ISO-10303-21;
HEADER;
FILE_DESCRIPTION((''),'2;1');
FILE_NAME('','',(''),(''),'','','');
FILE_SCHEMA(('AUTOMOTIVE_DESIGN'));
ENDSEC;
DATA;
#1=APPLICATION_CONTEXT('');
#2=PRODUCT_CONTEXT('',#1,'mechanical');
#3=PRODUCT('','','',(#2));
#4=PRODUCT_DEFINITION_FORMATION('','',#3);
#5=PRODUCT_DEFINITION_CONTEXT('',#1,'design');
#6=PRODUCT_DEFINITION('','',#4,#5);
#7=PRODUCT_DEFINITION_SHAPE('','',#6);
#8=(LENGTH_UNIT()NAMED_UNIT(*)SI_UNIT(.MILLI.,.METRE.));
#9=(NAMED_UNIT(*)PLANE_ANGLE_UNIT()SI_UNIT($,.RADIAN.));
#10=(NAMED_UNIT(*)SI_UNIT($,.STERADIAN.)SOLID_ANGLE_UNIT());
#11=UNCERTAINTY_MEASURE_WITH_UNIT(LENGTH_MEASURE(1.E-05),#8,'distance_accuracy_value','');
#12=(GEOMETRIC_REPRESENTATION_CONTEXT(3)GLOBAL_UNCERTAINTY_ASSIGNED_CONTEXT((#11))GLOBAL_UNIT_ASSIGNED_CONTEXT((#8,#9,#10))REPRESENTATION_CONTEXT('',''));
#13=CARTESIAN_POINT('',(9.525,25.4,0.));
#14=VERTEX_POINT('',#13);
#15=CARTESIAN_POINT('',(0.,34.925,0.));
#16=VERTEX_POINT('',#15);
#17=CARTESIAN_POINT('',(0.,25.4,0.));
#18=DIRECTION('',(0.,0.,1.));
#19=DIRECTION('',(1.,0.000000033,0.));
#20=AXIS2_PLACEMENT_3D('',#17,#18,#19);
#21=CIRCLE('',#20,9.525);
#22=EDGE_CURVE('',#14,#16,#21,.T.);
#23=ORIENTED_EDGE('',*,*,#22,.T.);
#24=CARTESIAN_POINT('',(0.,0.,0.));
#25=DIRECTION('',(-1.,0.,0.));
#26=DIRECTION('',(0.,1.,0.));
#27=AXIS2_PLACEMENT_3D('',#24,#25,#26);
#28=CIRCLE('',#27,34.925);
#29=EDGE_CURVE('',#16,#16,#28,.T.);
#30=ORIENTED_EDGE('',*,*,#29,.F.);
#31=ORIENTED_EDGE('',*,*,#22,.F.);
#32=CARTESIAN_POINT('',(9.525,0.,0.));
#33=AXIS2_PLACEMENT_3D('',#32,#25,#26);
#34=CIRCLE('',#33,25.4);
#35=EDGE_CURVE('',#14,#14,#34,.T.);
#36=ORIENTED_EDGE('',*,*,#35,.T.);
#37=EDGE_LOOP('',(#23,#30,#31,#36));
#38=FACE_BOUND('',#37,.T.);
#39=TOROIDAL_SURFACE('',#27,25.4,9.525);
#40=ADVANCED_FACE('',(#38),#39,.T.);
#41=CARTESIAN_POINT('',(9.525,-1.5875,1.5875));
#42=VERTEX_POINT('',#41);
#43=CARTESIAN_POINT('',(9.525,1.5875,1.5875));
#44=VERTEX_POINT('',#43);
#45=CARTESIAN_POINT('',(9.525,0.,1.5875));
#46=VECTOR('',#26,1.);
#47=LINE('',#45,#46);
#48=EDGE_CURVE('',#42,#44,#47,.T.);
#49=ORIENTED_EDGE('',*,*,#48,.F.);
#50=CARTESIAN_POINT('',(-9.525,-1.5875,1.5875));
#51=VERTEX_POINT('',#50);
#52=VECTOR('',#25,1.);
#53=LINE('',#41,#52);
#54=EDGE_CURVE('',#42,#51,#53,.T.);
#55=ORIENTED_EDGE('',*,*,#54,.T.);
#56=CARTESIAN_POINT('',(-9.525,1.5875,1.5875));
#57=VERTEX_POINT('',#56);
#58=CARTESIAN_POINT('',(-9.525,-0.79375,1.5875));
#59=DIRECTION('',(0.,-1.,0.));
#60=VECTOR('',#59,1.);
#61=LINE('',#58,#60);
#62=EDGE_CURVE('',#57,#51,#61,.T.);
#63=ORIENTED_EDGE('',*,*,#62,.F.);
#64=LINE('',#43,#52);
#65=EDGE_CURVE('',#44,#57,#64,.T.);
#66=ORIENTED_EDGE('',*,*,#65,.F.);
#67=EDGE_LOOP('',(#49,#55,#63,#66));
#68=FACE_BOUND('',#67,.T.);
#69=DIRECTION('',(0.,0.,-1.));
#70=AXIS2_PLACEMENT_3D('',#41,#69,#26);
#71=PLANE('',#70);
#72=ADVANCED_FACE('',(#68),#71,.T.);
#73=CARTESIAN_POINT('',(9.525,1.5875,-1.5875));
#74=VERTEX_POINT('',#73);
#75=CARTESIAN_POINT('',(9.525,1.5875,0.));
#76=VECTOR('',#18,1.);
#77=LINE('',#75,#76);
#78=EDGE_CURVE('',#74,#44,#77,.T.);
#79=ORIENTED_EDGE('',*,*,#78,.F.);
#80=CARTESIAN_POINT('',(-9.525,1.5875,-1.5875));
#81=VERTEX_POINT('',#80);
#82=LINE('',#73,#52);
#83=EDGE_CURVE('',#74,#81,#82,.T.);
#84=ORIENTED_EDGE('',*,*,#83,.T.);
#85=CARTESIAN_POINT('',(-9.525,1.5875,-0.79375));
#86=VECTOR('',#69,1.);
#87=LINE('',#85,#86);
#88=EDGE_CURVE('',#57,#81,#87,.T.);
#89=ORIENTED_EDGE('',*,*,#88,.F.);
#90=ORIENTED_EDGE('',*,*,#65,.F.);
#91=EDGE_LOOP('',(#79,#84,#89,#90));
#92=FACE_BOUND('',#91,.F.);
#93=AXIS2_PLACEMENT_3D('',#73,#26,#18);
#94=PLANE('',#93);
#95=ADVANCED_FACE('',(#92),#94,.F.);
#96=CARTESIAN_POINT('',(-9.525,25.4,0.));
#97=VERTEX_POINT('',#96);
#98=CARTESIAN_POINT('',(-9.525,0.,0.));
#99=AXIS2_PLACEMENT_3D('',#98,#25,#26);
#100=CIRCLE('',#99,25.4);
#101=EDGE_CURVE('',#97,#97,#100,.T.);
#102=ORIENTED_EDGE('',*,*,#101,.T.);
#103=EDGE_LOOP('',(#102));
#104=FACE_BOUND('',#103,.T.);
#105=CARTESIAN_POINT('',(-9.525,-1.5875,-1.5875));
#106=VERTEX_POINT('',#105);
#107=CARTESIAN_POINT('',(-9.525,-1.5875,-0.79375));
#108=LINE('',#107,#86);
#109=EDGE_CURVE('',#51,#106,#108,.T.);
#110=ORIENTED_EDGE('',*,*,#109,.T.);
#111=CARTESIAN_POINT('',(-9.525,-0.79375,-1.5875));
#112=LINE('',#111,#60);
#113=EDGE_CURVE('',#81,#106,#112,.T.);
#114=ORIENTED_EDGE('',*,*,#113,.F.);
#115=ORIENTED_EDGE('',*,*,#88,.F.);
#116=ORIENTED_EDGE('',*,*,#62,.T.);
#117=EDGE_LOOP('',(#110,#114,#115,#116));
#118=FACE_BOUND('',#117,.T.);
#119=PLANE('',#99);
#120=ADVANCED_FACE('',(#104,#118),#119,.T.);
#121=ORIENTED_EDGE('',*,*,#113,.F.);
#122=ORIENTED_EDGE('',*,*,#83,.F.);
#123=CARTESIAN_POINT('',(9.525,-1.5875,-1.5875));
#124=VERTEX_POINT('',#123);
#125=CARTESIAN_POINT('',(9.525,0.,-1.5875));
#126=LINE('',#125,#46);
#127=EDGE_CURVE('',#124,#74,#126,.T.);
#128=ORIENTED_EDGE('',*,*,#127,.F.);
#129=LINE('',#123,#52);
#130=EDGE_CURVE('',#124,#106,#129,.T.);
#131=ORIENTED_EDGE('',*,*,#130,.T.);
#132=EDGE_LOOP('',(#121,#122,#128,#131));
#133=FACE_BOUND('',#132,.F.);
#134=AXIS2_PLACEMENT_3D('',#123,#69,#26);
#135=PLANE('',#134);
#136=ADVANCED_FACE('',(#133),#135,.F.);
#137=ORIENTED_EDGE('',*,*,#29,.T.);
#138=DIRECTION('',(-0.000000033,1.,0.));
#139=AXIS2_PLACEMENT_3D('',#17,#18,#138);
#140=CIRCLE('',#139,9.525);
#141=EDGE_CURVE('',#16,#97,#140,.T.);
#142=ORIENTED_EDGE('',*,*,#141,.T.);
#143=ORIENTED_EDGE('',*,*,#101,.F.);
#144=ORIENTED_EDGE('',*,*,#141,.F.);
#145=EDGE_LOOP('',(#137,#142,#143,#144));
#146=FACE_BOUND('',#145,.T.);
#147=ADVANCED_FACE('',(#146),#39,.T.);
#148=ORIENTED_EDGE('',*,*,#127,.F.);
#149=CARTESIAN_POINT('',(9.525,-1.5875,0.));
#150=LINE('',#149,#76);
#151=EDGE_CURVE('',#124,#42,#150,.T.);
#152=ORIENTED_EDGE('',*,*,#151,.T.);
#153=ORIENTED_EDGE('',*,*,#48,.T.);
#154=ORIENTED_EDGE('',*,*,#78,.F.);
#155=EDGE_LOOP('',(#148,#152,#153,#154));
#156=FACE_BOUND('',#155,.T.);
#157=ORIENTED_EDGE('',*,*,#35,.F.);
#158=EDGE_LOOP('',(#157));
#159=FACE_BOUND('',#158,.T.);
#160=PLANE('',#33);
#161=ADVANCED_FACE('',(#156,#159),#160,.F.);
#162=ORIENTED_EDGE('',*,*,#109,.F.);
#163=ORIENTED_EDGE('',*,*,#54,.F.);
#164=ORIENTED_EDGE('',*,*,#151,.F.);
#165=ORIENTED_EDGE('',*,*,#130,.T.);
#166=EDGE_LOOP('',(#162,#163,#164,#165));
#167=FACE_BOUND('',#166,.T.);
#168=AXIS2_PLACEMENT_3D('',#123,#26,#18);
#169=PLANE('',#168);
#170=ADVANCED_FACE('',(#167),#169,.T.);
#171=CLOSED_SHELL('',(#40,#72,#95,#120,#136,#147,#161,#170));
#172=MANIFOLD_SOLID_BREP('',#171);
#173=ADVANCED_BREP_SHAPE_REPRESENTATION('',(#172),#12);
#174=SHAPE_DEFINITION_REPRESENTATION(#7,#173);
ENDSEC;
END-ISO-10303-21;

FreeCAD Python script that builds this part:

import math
import FreeCAD as App
import Part
import Sketcher

V = App.Vector
Q = App.Units.Quantity

doc = App.newDocument("Part")
body = doc.addObject("PartDesign::Body", "Body")

# Sketch on XY plane
sketch1 = body.newObject("Sketcher::SketchObject", "Sketch")
sketch1.AttachmentSupport = (doc.getObject("XY_Plane"), [""])
sketch1.MapMode = "FlatFace"
sketch1.addGeometry(Part.LineSegment(V(-10, 0, 0), V(10, 0, 0)), False)
sketch1.addGeometry(Part.LineSegment(V(10, 0, 0), V(10, 25, 0)), False)
sketch1.addGeometry(Part.ArcOfCircle(Part.Circle(V(0, 25, 0), V(0, 0, 1), 10), math.radians(0), math.radians(90)), False)
sketch1.addGeometry(Part.ArcOfCircle(Part.Circle(V(0, 25, 0), V(0, 0, 1), 10), math.radians(90), math.radians(180)), False)
sketch1.addGeometry(Part.LineSegment(V(-10, 25, 0), V(-10, 0, 0)), False)
sketch1.addConstraint(Sketcher.Constraint("Coincident", 0, 2, 1, 1))
sketch1.addConstraint(Sketcher.Constraint("Tangent", 1, 2, 2, 1))
sketch1.addConstraint(Sketcher.Constraint("Tangent", 2, 2, 3, 1))
sketch1.addConstraint(Sketcher.Constraint("Tangent", 3, 2, 4, 1))
sketch1.addConstraint(Sketcher.Constraint("Coincident", 4, 2, 0, 1))
sketch1.addConstraint(Sketcher.Constraint("Horizontal", 0))
sketch1.addConstraint(Sketcher.Constraint("Vertical", 1))
sketch1.addConstraint(Sketcher.Constraint("Vertical", 4))
sketch1.addConstraint(Sketcher.Constraint("Equal", 2, 3))
sketch1.addConstraint(Sketcher.Constraint("Symmetric", 0, 2, 4, 2, -1, 1))
sketch1.addConstraint(Sketcher.Constraint("PointOnObject", 2, 2, -2))
sketch1.addConstraint(Sketcher.Constraint("DistanceY", 1, 1, 1, 2, Q("1 in")))
sketch1.addConstraint(Sketcher.Constraint("Radius", 2, Q("0.375 in")))
revolution = body.newObject("PartDesign::Revolution", "Revolution")
revolution.Profile = sketch1
revolution.ReferenceAxis = (sketch1, ["H_Axis"])
revolution.Angle = 360

# Sketch on YZ plane
sketch2 = body.newObject("Sketcher::SketchObject", "Sketch001")
sketch2.AttachmentSupport = (doc.getObject("YZ_Plane"), [""])
sketch2.MapMode = "FlatFace"
sketch2.AttachmentOffset = App.Placement(V(0, 0, 0.375 * 25.4), App.Rotation())
sketch2.addGeometry(Part.LineSegment(V(-1.6, 1.6, 0), V(-1.6, -1.6, 0)), False)
sketch2.addGeometry(Part.LineSegment(V(-1.6, -1.6, 0), V(1.6, -1.6, 0)), False)
sketch2.addGeometry(Part.LineSegment(V(1.6, -1.6, 0), V(1.6, 1.6, 0)), False)
sketch2.addGeometry(Part.LineSegment(V(1.6, 1.6, 0), V(-1.6, 1.6, 0)), False)
sketch2.addConstraint(Sketcher.Constraint("Coincident", 0, 2, 1, 1))
sketch2.addConstraint(Sketcher.Constraint("Coincident", 1, 2, 2, 1))
sketch2.addConstraint(Sketcher.Constraint("Coincident", 2, 2, 3, 1))
sketch2.addConstraint(Sketcher.Constraint("Coincident", 3, 2, 0, 1))
sketch2.addConstraint(Sketcher.Constraint("Vertical", 0))
sketch2.addConstraint(Sketcher.Constraint("Horizontal", 1))
sketch2.addConstraint(Sketcher.Constraint("Vertical", 2))
sketch2.addConstraint(Sketcher.Constraint("Horizontal", 3))
sketch2.addConstraint(Sketcher.Constraint("Symmetric", 0, 2, 2, 2, -1, 1))
sketch2.addConstraint(Sketcher.Constraint("Equal", 3, 0))
sketch2.addConstraint(Sketcher.Constraint("DistanceX", 1, 1, 1, 2, Q("0.125 in")))
pocket1 = body.newObject("PartDesign::Pocket", "Pocket")
pocket1.Profile = sketch2
pocket1.Length = 25

doc.recompute()
